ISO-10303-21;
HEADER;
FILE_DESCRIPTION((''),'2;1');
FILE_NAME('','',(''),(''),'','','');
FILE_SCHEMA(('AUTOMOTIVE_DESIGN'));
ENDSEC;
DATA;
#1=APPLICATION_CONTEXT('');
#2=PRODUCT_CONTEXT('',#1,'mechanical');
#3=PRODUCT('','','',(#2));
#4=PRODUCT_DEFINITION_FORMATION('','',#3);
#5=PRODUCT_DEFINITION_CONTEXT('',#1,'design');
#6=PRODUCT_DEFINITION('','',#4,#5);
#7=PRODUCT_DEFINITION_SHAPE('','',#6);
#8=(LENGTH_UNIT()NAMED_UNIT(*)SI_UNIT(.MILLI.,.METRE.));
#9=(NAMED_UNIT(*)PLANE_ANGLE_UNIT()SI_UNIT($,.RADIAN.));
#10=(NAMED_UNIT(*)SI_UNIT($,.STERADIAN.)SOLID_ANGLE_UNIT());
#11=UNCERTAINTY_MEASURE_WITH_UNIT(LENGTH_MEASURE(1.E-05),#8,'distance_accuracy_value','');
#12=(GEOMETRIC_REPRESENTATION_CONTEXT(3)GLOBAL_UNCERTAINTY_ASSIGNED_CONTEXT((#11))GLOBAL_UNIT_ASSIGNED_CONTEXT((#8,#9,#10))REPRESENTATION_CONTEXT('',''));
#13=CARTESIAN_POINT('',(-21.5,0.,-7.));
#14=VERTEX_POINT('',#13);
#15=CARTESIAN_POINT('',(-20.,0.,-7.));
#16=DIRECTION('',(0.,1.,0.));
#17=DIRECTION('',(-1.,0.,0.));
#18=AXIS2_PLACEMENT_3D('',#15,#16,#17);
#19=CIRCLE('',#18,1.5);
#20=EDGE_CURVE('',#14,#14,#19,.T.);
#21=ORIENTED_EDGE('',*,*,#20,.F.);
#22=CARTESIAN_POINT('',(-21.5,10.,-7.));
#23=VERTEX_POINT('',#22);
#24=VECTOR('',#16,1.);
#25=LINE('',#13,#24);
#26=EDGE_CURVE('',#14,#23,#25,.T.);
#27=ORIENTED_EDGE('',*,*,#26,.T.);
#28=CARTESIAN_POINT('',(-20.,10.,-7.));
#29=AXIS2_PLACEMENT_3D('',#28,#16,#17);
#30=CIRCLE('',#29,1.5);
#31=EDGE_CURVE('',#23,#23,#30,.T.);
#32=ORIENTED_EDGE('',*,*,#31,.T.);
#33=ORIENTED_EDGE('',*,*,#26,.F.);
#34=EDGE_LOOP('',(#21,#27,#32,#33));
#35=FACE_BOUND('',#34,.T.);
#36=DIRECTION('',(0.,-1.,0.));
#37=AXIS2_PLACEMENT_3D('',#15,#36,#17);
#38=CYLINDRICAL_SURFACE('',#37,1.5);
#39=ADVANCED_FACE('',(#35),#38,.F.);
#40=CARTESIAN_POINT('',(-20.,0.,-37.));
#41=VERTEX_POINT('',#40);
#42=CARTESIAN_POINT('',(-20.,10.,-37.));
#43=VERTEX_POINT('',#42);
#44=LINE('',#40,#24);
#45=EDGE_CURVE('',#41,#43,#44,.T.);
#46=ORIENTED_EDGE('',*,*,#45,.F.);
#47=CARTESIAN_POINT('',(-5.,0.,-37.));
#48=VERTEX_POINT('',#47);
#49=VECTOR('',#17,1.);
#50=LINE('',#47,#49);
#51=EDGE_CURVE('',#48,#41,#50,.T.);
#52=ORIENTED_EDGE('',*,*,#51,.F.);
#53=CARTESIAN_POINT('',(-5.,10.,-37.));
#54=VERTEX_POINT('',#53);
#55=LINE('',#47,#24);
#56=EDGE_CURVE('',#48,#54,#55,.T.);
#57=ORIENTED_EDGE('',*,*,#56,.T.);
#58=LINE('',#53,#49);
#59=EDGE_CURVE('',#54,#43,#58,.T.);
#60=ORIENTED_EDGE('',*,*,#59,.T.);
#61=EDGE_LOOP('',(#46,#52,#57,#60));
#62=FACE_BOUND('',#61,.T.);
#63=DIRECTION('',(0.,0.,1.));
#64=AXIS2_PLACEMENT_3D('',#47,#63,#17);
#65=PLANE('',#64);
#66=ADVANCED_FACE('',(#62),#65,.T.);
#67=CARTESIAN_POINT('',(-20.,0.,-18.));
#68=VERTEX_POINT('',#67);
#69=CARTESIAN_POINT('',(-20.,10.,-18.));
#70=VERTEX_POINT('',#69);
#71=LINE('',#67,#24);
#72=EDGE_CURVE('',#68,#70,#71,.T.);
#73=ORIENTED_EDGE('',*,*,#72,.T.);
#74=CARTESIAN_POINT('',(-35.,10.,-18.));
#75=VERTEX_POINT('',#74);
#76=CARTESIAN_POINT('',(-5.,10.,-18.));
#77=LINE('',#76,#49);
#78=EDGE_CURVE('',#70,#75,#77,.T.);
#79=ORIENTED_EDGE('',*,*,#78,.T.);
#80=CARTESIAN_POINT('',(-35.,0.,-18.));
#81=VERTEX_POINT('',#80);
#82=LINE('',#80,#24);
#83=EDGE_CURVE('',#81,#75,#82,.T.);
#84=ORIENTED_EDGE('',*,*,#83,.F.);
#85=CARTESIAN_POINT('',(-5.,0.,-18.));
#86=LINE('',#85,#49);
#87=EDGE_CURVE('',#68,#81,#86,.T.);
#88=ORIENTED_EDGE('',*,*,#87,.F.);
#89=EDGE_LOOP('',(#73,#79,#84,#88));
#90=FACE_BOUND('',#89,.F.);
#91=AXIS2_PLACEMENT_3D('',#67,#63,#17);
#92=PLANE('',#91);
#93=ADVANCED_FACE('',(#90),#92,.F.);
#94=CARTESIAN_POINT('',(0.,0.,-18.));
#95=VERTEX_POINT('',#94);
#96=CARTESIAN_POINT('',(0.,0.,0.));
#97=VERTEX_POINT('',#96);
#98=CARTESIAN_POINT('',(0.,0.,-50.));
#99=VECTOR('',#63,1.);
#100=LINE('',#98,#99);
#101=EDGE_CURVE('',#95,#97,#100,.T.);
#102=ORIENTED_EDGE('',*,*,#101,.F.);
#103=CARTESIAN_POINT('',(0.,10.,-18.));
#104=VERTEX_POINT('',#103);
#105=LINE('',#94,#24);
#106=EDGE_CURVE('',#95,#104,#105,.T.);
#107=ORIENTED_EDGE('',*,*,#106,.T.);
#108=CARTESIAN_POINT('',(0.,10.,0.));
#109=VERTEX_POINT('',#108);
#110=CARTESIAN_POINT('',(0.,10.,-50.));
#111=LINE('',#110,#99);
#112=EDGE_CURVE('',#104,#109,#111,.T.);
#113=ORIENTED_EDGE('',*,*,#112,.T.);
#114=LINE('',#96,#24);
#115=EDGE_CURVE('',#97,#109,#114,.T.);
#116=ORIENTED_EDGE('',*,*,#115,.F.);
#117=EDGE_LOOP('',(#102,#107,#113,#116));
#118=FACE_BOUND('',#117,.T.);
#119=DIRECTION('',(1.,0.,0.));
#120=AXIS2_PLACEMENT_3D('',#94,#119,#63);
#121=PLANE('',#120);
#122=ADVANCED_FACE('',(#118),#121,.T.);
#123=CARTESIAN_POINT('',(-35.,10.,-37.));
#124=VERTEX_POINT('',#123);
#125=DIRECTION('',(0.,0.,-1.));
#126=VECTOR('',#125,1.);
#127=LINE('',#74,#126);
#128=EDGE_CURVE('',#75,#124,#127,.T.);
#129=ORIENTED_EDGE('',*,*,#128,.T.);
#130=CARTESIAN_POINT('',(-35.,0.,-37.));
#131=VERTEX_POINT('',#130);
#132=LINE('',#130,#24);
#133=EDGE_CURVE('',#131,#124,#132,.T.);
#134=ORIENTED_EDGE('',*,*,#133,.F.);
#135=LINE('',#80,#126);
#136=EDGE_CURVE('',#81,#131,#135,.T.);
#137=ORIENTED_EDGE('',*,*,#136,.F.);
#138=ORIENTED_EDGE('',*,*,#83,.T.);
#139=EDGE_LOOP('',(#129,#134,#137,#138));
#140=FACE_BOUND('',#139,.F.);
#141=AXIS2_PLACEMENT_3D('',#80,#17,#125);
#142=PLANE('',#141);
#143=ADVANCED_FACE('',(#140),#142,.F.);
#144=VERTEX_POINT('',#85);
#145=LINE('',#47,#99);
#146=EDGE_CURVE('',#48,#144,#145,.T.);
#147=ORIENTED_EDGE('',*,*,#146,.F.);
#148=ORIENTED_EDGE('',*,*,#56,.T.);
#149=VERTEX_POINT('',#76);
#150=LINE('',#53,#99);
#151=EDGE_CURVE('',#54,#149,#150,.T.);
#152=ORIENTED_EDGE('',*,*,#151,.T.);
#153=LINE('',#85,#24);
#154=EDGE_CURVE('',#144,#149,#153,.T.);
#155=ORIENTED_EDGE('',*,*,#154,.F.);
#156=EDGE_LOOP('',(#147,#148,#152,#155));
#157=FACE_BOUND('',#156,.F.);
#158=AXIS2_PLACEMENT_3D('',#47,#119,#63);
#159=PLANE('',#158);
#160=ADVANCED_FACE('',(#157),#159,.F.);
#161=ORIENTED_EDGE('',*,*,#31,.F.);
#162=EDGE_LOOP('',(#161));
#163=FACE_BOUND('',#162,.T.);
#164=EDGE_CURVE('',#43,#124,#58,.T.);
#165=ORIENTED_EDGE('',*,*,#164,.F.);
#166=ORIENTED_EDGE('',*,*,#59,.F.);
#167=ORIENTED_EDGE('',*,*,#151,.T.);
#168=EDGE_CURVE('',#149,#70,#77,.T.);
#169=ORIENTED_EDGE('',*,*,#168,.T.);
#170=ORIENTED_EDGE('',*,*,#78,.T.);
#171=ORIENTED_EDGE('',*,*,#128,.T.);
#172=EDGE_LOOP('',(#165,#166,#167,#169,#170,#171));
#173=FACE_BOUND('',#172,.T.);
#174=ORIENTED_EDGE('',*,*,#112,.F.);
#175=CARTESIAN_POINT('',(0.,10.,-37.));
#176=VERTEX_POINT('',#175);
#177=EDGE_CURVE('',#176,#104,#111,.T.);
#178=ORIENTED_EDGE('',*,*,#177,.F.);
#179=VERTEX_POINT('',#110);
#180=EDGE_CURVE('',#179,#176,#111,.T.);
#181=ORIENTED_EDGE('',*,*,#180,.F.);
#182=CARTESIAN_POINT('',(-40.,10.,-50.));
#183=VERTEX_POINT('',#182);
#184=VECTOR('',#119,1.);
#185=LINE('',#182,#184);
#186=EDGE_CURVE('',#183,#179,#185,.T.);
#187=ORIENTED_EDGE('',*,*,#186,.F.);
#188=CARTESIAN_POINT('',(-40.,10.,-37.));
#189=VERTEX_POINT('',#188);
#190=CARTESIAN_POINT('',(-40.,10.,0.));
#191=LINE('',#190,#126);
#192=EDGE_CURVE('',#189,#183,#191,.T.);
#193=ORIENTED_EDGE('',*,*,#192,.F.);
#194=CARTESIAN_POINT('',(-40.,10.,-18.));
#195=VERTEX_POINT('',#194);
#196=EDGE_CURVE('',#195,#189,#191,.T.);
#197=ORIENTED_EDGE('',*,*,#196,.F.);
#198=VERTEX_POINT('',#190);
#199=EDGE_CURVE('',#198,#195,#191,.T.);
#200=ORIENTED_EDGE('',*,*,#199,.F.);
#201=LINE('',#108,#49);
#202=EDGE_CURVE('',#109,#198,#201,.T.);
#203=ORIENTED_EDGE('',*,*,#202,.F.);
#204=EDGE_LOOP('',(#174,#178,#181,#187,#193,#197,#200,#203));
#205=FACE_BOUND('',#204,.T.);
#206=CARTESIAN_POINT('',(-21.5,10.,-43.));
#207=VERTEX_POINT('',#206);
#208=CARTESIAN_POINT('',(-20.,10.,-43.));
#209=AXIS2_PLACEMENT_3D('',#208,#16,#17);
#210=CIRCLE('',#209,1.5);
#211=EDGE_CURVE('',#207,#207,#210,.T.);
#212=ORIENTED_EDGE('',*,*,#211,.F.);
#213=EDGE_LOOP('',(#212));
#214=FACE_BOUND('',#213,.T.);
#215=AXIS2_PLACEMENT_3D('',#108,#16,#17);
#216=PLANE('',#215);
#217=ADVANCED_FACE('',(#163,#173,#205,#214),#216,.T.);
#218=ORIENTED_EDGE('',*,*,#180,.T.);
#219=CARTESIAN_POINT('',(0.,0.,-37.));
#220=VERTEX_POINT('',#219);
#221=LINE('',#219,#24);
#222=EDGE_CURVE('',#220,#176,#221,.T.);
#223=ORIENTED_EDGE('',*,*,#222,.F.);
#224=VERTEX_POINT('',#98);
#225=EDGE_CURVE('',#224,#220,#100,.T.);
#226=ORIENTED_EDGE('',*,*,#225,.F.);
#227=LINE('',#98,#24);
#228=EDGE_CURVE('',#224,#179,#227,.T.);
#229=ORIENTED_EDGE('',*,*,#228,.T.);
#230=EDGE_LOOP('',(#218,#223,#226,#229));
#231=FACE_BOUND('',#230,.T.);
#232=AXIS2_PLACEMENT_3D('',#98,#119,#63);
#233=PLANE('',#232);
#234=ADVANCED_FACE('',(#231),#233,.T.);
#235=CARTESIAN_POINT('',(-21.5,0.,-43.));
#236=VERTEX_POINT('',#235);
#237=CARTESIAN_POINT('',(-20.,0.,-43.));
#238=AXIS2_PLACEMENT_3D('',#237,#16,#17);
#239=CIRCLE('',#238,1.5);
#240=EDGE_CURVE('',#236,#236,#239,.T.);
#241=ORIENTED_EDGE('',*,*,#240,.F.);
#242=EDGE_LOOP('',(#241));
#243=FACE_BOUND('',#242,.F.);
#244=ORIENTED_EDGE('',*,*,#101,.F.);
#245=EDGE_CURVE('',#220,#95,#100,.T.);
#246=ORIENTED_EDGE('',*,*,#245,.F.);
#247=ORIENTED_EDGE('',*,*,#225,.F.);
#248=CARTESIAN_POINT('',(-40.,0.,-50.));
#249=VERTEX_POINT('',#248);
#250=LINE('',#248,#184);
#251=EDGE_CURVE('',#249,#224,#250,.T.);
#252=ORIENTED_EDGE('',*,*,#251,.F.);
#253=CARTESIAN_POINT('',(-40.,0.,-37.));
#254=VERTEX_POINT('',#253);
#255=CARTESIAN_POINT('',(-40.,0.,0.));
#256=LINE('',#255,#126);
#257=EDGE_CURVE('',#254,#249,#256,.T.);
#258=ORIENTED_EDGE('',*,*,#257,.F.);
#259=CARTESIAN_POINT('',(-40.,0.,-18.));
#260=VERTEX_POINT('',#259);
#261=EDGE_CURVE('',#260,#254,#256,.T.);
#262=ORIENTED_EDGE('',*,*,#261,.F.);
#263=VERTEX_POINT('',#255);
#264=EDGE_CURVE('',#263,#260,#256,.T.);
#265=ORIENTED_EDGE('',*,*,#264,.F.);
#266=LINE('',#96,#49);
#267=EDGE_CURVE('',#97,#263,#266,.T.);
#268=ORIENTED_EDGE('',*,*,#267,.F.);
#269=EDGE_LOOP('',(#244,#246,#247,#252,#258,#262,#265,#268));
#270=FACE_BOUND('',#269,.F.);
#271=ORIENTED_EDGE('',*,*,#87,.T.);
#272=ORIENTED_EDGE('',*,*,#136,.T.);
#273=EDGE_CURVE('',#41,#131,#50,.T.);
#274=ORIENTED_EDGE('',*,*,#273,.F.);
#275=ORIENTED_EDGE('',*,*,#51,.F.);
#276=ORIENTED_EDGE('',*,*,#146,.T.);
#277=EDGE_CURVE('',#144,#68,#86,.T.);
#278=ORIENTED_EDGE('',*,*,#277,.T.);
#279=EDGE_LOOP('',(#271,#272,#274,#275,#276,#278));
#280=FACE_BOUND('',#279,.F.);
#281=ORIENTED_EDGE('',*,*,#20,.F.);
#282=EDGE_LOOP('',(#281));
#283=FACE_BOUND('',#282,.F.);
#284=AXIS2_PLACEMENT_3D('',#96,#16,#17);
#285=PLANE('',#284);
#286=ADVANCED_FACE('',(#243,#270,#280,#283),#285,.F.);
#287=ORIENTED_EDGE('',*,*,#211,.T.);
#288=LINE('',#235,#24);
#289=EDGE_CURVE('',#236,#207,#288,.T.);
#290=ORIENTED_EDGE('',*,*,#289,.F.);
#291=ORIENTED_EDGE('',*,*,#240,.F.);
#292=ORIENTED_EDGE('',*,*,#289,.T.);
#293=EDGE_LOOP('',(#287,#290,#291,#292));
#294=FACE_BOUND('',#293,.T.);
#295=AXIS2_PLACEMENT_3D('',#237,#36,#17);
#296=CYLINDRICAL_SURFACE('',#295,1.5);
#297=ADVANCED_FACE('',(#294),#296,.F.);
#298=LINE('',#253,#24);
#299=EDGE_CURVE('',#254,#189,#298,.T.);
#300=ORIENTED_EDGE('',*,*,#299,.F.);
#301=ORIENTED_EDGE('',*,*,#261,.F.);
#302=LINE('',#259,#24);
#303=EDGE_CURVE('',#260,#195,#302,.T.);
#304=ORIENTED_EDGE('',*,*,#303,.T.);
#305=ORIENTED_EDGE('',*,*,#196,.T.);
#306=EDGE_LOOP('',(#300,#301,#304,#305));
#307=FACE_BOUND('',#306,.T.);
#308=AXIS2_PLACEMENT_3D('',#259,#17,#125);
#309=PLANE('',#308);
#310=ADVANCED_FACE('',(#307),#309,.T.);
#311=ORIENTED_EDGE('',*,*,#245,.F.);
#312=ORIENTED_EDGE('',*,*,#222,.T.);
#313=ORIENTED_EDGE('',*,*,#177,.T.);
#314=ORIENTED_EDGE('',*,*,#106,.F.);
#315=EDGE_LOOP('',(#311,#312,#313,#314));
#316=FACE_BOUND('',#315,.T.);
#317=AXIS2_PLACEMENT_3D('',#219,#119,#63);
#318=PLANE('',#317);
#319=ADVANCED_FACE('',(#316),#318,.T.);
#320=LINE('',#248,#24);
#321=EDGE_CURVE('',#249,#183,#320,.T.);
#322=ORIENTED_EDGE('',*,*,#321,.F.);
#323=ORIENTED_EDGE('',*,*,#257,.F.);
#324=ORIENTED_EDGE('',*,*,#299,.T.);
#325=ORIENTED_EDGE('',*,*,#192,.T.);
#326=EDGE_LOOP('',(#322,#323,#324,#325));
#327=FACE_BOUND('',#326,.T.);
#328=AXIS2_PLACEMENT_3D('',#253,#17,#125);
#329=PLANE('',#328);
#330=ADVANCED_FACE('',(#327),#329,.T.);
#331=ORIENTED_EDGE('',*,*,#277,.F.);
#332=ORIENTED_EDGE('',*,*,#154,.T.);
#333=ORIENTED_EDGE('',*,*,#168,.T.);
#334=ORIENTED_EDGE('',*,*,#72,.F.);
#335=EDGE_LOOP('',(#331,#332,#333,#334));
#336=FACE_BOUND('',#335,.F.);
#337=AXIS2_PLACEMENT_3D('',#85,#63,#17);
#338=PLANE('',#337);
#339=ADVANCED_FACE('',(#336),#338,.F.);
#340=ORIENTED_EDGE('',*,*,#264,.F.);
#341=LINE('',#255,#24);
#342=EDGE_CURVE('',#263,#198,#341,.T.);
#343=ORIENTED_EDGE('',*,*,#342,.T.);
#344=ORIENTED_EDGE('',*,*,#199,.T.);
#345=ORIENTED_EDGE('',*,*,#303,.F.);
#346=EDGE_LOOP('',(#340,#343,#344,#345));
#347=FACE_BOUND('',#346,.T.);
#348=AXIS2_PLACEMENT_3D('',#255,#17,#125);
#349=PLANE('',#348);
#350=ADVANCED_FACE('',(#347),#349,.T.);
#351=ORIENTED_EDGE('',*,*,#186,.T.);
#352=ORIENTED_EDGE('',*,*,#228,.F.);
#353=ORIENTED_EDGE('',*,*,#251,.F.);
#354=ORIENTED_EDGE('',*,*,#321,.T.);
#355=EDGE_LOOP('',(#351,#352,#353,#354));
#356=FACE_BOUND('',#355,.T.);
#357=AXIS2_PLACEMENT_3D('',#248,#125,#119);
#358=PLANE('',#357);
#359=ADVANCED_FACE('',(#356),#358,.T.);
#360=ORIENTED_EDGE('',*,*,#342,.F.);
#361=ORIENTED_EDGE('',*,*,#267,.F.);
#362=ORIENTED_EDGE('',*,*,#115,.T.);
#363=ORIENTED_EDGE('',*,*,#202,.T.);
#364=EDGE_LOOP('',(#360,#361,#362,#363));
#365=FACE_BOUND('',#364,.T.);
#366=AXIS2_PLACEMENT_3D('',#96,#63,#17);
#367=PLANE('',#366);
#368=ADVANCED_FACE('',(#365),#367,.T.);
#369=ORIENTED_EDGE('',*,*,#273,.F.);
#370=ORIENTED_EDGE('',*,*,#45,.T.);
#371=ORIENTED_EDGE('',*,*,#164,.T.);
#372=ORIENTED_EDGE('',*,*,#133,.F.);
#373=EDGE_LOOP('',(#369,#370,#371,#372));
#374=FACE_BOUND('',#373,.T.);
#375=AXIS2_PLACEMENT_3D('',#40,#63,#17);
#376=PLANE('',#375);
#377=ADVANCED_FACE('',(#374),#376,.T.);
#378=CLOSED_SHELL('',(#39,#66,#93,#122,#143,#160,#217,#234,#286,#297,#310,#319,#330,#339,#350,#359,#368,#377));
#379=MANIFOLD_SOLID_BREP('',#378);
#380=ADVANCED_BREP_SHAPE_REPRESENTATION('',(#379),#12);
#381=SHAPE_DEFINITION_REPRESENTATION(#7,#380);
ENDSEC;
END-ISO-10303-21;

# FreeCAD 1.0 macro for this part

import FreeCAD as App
import Part
import Sketcher

V = App.Vector


def add_polygon(sketch, points):
    """Adds a closed chain of lines whose ends are joined by coincident constraints."""
    first, n = sketch.GeometryCount, len(points)
    for a, b in zip(points, points[1:] + points[:1]):
        sketch.addGeometry(Part.LineSegment(App.Vector(*a, 0), App.Vector(*b, 0)), False)
    for i in range(n):
        sketch.addConstraint(Sketcher.Constraint("Coincident", first + i, 2, first + (i + 1) % n, 1))

doc = App.newDocument("Part")
body = doc.addObject("PartDesign::Body", "Body")

sketch1 = doc.addObject("Sketcher::SketchObject", "Sketch")
body.addObject(sketch1)
sketch1.AttachmentSupport = (doc.XZ_Plane, [""])
sketch1.MapMode = "FlatFace"
add_polygon(sketch1, [(-40, 0), (0, 0), (0, -50), (-40, -50)])
sketch1.addGeometry(Part.Circle(V(-20, -43, 0), V(0, 0, 1), 1.5), False)
add_polygon(sketch1, [(-5, -37), (-5, -18), (-35, -18), (-35, -37)])
sketch1.addGeometry(Part.Circle(V(-20, -7, 0), V(0, 0, 1), 1.5), False)
sketch1.addConstraint(Sketcher.Constraint("Horizontal", 0))
sketch1.addConstraint(Sketcher.Constraint("Vertical", 1))
sketch1.addConstraint(Sketcher.Constraint("Horizontal", 2))
sketch1.addConstraint(Sketcher.Constraint("Vertical", 3))
sketch1.addConstraint(Sketcher.Constraint("Vertical", 5))
sketch1.addConstraint(Sketcher.Constraint("Horizontal", 6))
sketch1.addConstraint(Sketcher.Constraint("Vertical", 7))
sketch1.addConstraint(Sketcher.Constraint("Horizontal", 8))
sketch1.addConstraint(Sketcher.Constraint("Coincident", 0, 2, -1, 1))
sketch1.addConstraint(Sketcher.Constraint("Equal", 4, 9))
sketch1.addConstraint(Sketcher.Constraint("Vertical", 4, 3, 9, 3))
sketch1.addConstraint(Sketcher.Constraint("Diameter", 4, 3.0))
sketch1.addConstraint(Sketcher.Constraint("DistanceX", 0, 1, 0, 2, 40.0))
sketch1.addConstraint(Sketcher.Constraint("DistanceY", 1, 2, 1, 1, 50.0))
sketch1.addConstraint(Sketcher.Constraint("DistanceX", 6, 2, 6, 1, 30.0))
sketch1.addConstraint(Sketcher.Constraint("DistanceY", 5, 1, 5, 2, 19.0))
sketch1.addConstraint(Sketcher.Constraint("DistanceX", 4, 3, -1, 1, 20.0))
sketch1.addConstraint(Sketcher.Constraint("DistanceY", 4, 3, -1, 1, 43.0))
sketch1.addConstraint(Sketcher.Constraint("DistanceY", 9, 3, -1, 1, 7.0))
sketch1.addConstraint(Sketcher.Constraint("DistanceX", 5, 2, -1, 1, 5.0))
sketch1.addConstraint(Sketcher.Constraint("DistanceY", 5, 2, -1, 1, 18.0))
pad1 = doc.addObject("PartDesign::Pad", "Pad")
body.addObject(pad1)
pad1.Profile = sketch1
pad1.Length = 10
pad1.Reversed = True

doc.recompute()
